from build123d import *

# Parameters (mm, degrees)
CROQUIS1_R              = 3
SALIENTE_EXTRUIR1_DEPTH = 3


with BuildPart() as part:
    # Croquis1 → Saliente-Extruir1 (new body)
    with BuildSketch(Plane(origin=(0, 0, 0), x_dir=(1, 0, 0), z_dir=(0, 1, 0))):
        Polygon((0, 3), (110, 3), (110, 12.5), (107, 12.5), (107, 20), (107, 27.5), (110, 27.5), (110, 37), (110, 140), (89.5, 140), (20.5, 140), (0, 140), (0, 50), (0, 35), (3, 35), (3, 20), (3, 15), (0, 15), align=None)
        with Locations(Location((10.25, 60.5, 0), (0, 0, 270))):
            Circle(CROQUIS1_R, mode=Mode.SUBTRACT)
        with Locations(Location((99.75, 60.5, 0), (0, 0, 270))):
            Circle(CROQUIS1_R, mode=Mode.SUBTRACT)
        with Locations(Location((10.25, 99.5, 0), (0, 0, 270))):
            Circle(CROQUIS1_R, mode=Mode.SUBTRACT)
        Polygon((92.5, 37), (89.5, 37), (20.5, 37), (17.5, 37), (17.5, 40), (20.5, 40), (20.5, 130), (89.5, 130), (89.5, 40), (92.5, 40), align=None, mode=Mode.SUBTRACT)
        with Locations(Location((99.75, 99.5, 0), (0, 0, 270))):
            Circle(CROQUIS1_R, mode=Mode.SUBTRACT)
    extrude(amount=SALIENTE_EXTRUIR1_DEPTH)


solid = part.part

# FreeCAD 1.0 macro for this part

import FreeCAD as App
import Part
import Sketcher

V = App.Vector
Q = App.Units.Quantity

doc = App.newDocument("Part")
body = doc.addObject("PartDesign::Body", "Body")

sketch1 = body.newObject("Sketcher::SketchObject", "Sketch")
sketch1.AttachmentSupport = (doc.getObject("XZ_Plane"), [""])
sketch1.MapMode = "FlatFace"
sketch1.addGeometry(Part.LineSegment(V(0, -3, 0), V(110, -3, 0)), False)
sketch1.addGeometry(Part.LineSegment(V(110, -3, 0), V(110, -12.5, 0)), False)
sketch1.addGeometry(Part.LineSegment(V(110, -12.5, 0), V(107, -12.5, 0)), False)
sketch1.addGeometry(Part.LineSegment(V(107, -12.5, 0), V(107, -27.5, 0)), False)
sketch1.addGeometry(Part.LineSegment(V(107, -27.5, 0), V(110, -27.5, 0)), False)
sketch1.addGeometry(Part.LineSegment(V(110, -27.5, 0), V(110, -140, 0)), False)
sketch1.addGeometry(Part.LineSegment(V(110, -140, 0), V(0, -140, 0)), False)
sketch1.addGeometry(Part.LineSegment(V(0, -140, 0), V(0, -35, 0)), False)
sketch1.addGeometry(Part.LineSegment(V(0, -35, 0), V(3, -35, 0)), False)
sketch1.addGeometry(Part.LineSegment(V(3, -35, 0), V(3, -15, 0)), False)
sketch1.addGeometry(Part.LineSegment(V(3, -15, 0), V(0, -15, 0)), False)
sketch1.addGeometry(Part.LineSegment(V(0, -15, 0), V(0, -3, 0)), False)
sketch1.addGeometry(Part.Circle(V(10.2, -60.5, 0), V(0, 0, 1), 3), False)
sketch1.addGeometry(Part.Circle(V(99.8, -60.5, 0), V(0, 0, 1), 3), False)
sketch1.addGeometry(Part.Circle(V(10.2, -99.5, 0), V(0, 0, 1), 3), False)
sketch1.addGeometry(Part.LineSegment(V(92.5, -40, 0), V(92.5, -37, 0)), False)
sketch1.addGeometry(Part.LineSegment(V(92.5, -37, 0), V(17.5, -37, 0)), False)
sketch1.addGeometry(Part.LineSegment(V(17.5, -37, 0), V(17.5, -40, 0)), False)
sketch1.addGeometry(Part.LineSegment(V(17.5, -40, 0), V(20.5, -40, 0)), False)
sketch1.addGeometry(Part.LineSegment(V(20.5, -40, 0), V(20.5, -130, 0)), False)
sketch1.addGeometry(Part.LineSegment(V(20.5, -130, 0), V(89.5, -130, 0)), False)
sketch1.addGeometry(Part.LineSegment(V(89.5, -130, 0), V(89.5, -40, 0)), False)
sketch1.addGeometry(Part.LineSegment(V(89.5, -40, 0), V(92.5, -40, 0)), False)
sketch1.addGeometry(Part.Circle(V(99.8, -99.5, 0), V(0, 0, 1), 3), False)
sketch1.addConstraint(Sketcher.Constraint("Coincident", 0, 2, 1, 1))
sketch1.addConstraint(Sketcher.Constraint("Coincident", 1, 2, 2, 1))
sketch1.addConstraint(Sketcher.Constraint("Coincident", 2, 2, 3, 1))
sketch1.addConstraint(Sketcher.Constraint("Coincident", 3, 2, 4, 1))
sketch1.addConstraint(Sketcher.Constraint("Coincident", 4, 2, 5, 1))
sketch1.addConstraint(Sketcher.Constraint("Coincident", 5, 2, 6, 1))
sketch1.addConstraint(Sketcher.Constraint("Coincident", 6, 2, 7, 1))
sketch1.addConstraint(Sketcher.Constraint("Coincident", 7, 2, 8, 1))
sketch1.addConstraint(Sketcher.Constraint("Coincident", 8, 2, 9, 1))
sketch1.addConstraint(Sketcher.Constraint("Coincident", 9, 2, 10, 1))
sketch1.addConstraint(Sketcher.Constraint("Coincident", 10, 2, 11, 1))
sketch1.addConstraint(Sketcher.Constraint("Coincident", 11, 2, 0, 1))
sketch1.addConstraint(Sketcher.Constraint("Coincident", 15, 2, 16, 1))
sketch1.addConstraint(Sketcher.Constraint("Coincident", 16, 2, 17, 1))
sketch1.addConstraint(Sketcher.Constraint("Coincident", 17, 2, 18, 1))
sketch1.addConstraint(Sketcher.Constraint("Coincident", 18, 2, 19, 1))
sketch1.addConstraint(Sketcher.Constraint("Coincident", 19, 2, 20, 1))
sketch1.addConstraint(Sketcher.Constraint("Coincident", 20, 2, 21, 1))
sketch1.addConstraint(Sketcher.Constraint("Coincident", 21, 2, 22, 1))
sketch1.addConstraint(Sketcher.Constraint("Coincident", 22, 2, 15, 1))
sketch1.addConstraint(Sketcher.Constraint("Horizontal", 0))
sketch1.addConstraint(Sketcher.Constraint("Vertical", 1))
sketch1.addConstraint(Sketcher.Constraint("Horizontal", 2))
sketch1.addConstraint(Sketcher.Constraint("Vertical", 3))
sketch1.addConstraint(Sketcher.Constraint("Horizontal", 4))
sketch1.addConstraint(Sketcher.Constraint("Vertical", 5))
sketch1.addConstraint(Sketcher.Constraint("Horizontal", 6))
sketch1.addConstraint(Sketcher.Constraint("Vertical", 7))
sketch1.addConstraint(Sketcher.Constraint("Horizontal", 8))
sketch1.addConstraint(Sketcher.Constraint("Vertical", 9))
sketch1.addConstraint(Sketcher.Constraint("Horizontal", 10))
sketch1.addConstraint(Sketcher.Constraint("Vertical", 11))
sketch1.addConstraint(Sketcher.Constraint("Vertical", 15))
sketch1.addConstraint(Sketcher.Constraint("Horizontal", 16))
sketch1.addConstraint(Sketcher.Constraint("Vertical", 17))
sketch1.addConstraint(Sketcher.Constraint("Horizontal", 18))
sketch1.addConstraint(Sketcher.Constraint("Vertical", 19))
sketch1.addConstraint(Sketcher.Constraint("Horizontal", 20))
sketch1.addConstraint(Sketcher.Constraint("Vertical", 21))
sketch1.addConstraint(Sketcher.Constraint("Horizontal", 22))
sketch1.addConstraint(Sketcher.Constraint("Equal", 12, 13))
sketch1.addConstraint(Sketcher.Constraint("Equal", 13, 14))
sketch1.addConstraint(Sketcher.Constraint("Equal", 14, 23))
sketch1.addConstraint(Sketcher.Constraint("PointOnObject", 6, 2, -2))
sketch1.addConstraint(Sketcher.Constraint("PointOnObject", 10, 2, -2))
sketch1.addConstraint(Sketcher.Constraint("Horizontal", 12, 3, 13, 3))
sketch1.addConstraint(Sketcher.Constraint("Horizontal", 14, 3, 23, 3))
sketch1.addConstraint(Sketcher.Constraint("Horizontal", 18, 2, 21, 2))
sketch1.addConstraint(Sketcher.Constraint("Vertical", 12, 3, 14, 3))
sketch1.addConstraint(Sketcher.Constraint("Vertical", 13, 3, 23, 3))
sketch1.addConstraint(Sketcher.Constraint("Vertical", 1, 2, 4, 2))
sketch1.addConstraint(Sketcher.Constraint("Equal", 4, 8))
sketch1.addConstraint(Sketcher.Constraint("Equal", 10, 18))
sketch1.addConstraint(Sketcher.Constraint("Equal", 18, 22))
sketch1.addConstraint(Sketcher.Constraint("Equal", 22, 15))
sketch1.addConstraint(Sketcher.Constraint("Diameter", 12, Q("6 mm")))
sketch1.addConstraint(Sketcher.Constraint("DistanceX", 0, 1, 0, 2, Q("110 mm")))
sketch1.addConstraint(Sketcher.Constraint("DistanceX", 2, 2, 2, 1, Q("3 mm")))
sketch1.addConstraint(Sketcher.Constraint("DistanceX", 16, 2, 16, 1, Q("75 mm")))
sketch1.addConstraint(Sketcher.Constraint("DistanceY", 3, 2, 3, 1, Q("15 mm")))
sketch1.addConstraint(Sketcher.Constraint("DistanceY", 7, 1, 7, 2, Q("105 mm")))
sketch1.addConstraint(Sketcher.Constraint("DistanceY", 9, 1, 9, 2, Q("20 mm")))
sketch1.addConstraint(Sketcher.Constraint("DistanceY", 11, 1, 11, 2, Q("12 mm")))
sketch1.addConstraint(Sketcher.Constraint("DistanceY", 19, 2, 19, 1, Q("90 mm")))
sketch1.addConstraint(Sketcher.Constraint("DistanceY", 1, 2, 1, 1, Q("9.5 mm")))
sketch1.addConstraint(Sketcher.Constraint("DistanceY", 0, 2, -1, 1, Q("3 mm")))
sketch1.addConstraint(Sketcher.Constraint("DistanceY", 15, 2, -1, 1, Q("37 mm")))
sketch1.addConstraint(Sketcher.Constraint("DistanceY", 14, 3, 12, 3, Q("39 mm")))
sketch1.addConstraint(Sketcher.Constraint("DistanceY", 13, 3, 1, 2, Q("48 mm")))
sketch1.addConstraint(Sketcher.Constraint("DistanceX", -1, 1, 15, 2, Q("92.5 mm")))
sketch1.addConstraint(Sketcher.Constraint("DistanceX", 12, 3, 13, 3, Q("89.5 mm")))
sketch1.addConstraint(Sketcher.Constraint("DistanceX", -1, 1, 12, 3, Q("10.25 mm")))
pad1 = body.newObject("PartDesign::Pad", "Pad")
pad1.Profile = sketch1
pad1.Length = 3
pad1.Reversed = True

doc.recompute()
